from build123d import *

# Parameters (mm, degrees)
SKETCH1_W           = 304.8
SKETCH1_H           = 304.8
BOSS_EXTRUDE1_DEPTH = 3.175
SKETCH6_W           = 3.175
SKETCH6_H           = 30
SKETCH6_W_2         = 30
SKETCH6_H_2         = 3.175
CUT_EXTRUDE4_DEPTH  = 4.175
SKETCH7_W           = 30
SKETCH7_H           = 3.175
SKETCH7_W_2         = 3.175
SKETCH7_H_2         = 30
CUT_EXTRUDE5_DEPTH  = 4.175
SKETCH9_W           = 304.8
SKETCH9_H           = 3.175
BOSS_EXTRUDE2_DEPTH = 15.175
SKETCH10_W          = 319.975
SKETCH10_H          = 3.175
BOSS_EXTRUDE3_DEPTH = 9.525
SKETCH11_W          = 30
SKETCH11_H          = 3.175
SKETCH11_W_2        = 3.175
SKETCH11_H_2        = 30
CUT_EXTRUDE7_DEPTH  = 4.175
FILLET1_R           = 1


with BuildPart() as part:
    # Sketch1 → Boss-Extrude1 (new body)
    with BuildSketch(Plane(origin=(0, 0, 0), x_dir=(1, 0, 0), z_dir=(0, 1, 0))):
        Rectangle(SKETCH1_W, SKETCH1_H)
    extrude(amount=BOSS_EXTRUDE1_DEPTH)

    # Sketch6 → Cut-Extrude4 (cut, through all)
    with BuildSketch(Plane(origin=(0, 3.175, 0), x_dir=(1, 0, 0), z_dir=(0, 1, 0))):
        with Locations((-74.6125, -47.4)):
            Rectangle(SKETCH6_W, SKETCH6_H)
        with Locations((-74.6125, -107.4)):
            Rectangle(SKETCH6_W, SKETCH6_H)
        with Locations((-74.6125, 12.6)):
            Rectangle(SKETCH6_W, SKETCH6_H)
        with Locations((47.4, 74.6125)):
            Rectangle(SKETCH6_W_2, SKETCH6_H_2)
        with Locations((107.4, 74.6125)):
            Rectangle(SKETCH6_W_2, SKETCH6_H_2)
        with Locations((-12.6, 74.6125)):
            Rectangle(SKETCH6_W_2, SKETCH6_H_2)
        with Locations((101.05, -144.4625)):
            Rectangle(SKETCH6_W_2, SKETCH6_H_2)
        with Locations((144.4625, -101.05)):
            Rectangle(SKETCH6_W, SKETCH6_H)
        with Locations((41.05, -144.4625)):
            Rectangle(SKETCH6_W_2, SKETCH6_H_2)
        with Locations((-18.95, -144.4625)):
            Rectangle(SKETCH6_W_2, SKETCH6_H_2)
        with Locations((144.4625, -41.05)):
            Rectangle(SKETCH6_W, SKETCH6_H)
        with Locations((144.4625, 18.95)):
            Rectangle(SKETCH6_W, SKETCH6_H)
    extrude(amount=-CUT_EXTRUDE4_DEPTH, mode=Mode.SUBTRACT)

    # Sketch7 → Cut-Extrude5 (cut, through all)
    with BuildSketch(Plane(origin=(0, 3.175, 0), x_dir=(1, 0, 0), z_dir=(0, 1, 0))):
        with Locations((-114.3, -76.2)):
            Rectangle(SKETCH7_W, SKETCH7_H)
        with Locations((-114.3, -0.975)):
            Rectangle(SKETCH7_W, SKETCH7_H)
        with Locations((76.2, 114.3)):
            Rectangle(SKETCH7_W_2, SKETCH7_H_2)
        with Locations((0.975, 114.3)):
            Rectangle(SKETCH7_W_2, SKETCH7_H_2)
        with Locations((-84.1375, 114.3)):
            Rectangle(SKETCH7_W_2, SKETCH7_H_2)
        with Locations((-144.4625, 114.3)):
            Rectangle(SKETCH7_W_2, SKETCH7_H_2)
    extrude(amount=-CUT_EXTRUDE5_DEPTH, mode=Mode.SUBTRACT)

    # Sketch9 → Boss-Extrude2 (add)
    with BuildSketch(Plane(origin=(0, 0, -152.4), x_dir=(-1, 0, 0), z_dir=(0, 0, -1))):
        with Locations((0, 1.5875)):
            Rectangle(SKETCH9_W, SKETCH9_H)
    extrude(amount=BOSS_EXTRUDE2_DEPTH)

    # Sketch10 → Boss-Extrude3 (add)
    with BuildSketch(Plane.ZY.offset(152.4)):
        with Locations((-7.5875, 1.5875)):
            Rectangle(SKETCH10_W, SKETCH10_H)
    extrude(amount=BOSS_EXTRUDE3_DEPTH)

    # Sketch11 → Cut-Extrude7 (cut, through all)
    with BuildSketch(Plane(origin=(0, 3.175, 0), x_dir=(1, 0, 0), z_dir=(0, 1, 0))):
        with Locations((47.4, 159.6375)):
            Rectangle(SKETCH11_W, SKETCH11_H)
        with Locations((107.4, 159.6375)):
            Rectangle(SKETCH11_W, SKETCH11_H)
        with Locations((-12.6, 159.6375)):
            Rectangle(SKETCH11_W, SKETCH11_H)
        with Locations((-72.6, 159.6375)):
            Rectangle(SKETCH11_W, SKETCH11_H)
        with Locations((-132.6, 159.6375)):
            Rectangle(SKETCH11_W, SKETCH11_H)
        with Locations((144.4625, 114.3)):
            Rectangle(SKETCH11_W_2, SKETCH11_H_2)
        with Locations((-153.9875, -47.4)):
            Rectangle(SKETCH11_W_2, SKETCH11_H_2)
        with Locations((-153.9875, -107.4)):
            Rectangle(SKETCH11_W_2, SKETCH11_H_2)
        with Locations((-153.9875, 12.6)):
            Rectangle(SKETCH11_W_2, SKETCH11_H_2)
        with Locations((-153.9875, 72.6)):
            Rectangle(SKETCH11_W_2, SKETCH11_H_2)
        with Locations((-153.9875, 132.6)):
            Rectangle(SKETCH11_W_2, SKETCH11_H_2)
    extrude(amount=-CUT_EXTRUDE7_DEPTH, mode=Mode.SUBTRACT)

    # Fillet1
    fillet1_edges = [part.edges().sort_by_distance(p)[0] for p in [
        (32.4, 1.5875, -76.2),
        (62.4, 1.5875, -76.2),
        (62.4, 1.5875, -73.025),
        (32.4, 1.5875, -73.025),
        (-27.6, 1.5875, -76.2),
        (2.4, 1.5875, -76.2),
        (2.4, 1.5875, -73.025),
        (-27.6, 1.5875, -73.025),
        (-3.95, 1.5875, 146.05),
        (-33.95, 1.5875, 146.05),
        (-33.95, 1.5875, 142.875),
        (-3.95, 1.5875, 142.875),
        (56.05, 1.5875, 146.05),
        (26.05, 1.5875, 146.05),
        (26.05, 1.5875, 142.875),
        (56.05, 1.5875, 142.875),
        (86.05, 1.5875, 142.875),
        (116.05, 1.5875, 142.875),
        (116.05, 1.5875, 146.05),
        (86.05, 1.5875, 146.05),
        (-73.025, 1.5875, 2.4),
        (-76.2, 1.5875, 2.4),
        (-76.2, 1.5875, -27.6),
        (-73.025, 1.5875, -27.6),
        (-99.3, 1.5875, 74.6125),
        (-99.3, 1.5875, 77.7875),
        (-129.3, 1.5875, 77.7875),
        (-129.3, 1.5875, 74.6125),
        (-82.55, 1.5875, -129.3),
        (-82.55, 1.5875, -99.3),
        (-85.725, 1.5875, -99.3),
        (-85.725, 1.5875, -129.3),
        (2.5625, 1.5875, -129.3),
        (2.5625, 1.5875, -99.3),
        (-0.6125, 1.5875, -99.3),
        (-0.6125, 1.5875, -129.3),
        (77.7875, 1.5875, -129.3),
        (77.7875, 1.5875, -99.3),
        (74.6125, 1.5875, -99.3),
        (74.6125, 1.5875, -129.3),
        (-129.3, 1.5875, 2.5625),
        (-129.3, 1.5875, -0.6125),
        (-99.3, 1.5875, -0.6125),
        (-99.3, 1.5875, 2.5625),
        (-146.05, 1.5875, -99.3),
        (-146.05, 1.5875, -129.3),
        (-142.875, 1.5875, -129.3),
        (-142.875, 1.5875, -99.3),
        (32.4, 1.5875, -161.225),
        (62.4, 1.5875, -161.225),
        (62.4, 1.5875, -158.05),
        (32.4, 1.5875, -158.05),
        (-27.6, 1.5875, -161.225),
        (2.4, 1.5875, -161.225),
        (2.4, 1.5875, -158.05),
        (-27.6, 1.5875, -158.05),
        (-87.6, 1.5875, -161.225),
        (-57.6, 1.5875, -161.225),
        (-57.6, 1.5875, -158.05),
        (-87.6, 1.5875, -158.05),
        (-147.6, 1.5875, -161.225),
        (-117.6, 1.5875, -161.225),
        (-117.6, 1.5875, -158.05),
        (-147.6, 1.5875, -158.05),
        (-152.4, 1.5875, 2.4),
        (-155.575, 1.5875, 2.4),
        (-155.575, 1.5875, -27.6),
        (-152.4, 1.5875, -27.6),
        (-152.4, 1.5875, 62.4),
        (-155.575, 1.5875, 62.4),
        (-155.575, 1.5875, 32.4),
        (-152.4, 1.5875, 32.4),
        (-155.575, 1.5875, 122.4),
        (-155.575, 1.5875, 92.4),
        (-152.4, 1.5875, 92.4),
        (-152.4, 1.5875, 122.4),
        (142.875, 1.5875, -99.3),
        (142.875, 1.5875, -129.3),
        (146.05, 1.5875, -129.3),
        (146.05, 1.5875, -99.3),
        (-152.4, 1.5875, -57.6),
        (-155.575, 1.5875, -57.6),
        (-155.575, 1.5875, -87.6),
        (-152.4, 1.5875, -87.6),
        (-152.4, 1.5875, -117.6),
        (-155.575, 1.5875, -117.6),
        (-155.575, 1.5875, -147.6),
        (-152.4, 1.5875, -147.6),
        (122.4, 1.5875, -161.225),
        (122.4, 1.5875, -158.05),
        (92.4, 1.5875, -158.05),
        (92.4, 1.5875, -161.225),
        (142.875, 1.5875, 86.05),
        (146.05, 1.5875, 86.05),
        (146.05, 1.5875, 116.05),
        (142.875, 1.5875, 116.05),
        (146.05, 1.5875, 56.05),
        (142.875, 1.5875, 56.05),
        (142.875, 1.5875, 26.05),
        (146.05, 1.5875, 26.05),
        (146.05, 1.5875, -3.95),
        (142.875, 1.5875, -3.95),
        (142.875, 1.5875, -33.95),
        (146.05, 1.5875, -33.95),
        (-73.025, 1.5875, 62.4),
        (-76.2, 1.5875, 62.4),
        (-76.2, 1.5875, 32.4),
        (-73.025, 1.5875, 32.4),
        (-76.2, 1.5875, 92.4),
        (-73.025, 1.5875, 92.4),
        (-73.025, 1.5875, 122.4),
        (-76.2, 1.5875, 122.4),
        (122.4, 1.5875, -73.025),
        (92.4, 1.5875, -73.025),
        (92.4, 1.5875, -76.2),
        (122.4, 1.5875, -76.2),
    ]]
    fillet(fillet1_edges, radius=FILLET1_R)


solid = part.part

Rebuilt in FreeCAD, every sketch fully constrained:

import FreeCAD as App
import Part
import Sketcher
Q = App.Units.Quantity


def edges_at(feature, points):
    """Names of the edges that pass closest to the given points."""
    edges = feature.Shape.Edges
    near = lambda p: min(range(len(edges)), key=lambda i: edges[i].distToShape(Part.Vertex(*p))[0])
    return sorted({f"Edge{near(p) + 1}" for p in points})

doc = App.newDocument("Part")
body = doc.addObject("PartDesign::Body", "Body")

sketch1 = doc.addObject("Sketcher::SketchObject", "Sketch")
body.addObject(sketch1)
sketch1.AttachmentSupport = (doc.XZ_Plane, [""])
sketch1.MapMode = "FlatFace"
sketch1.addGeometry([
    Part.LineSegment(App.Vector(-152, -152, 0), App.Vector(-152, 152, 0)),
    Part.LineSegment(App.Vector(-152, 152, 0), App.Vector(152, 152, 0)),
    Part.LineSegment(App.Vector(152, 152, 0), App.Vector(152, -152, 0)),
    Part.LineSegment(App.Vector(152, -152, 0), App.Vector(-152, -152, 0)),
], False)
sketch1.addConstraint([
    Sketcher.Constraint("Coincident", 0, 2, 1, 1),
    Sketcher.Constraint("Coincident", 1, 2, 2, 1),
    Sketcher.Constraint("Coincident", 2, 2, 3, 1),
    Sketcher.Constraint("Coincident", 3, 2, 0, 1),
    Sketcher.Constraint("Vertical", 0),
    Sketcher.Constraint("Horizontal", 1),
    Sketcher.Constraint("Vertical", 2),
    Sketcher.Constraint("Horizontal", 3),
    Sketcher.Constraint("Symmetric", 0, 2, 2, 2, -1, 1),
    Sketcher.Constraint("Equal", 3, 0),
    Sketcher.Constraint("DistanceX", 1, 1, 1, 2, Q("12 in")),
])
pad1 = doc.addObject("PartDesign::Pad", "Pad")
body.addObject(pad1)
pad1.Profile = sketch1
pad1.Length = Q("0.125 in")
pad1.Reversed = True

sketch2 = doc.addObject("Sketcher::SketchObject", "Sketch001")
body.addObject(sketch2)
sketch2.AttachmentSupport = (doc.XZ_Plane, [""])
sketch2.MapMode = "FlatFace"
sketch2.AttachmentOffset = App.Placement(App.Vector(0, 0, -0.125 * 25.4), App.Rotation())
sketch2.addGeometry([
    Part.LineSegment(App.Vector(-76.2, 32.4, 0), App.Vector(-76.2, 62.4, 0)),
    Part.LineSegment(App.Vector(-76.2, 62.4, 0), App.Vector(-73, 62.4, 0)),
    Part.LineSegment(App.Vector(-73, 62.4, 0), App.Vector(-73, 32.4, 0)),
    Part.LineSegment(App.Vector(-73, 32.4, 0), App.Vector(-76.2, 32.4, 0)),
    Part.LineSegment(App.Vector(-76.2, 92.4, 0), App.Vector(-76.2, 122.4, 0)),
    Part.LineSegment(App.Vector(-76.2, 122.4, 0), App.Vector(-73, 122.4, 0)),
    Part.LineSegment(App.Vector(-73, 122.4, 0), App.Vector(-73, 92.4, 0)),
    Part.LineSegment(App.Vector(-73, 92.4, 0), App.Vector(-76.2, 92.4, 0)),
    Part.LineSegment(App.Vector(-76.2, -27.6, 0), App.Vector(-76.2, 2.4, 0)),
    Part.LineSegment(App.Vector(-76.2, 2.4, 0), App.Vector(-73, 2.4, 0)),
    Part.LineSegment(App.Vector(-73, 2.4, 0), App.Vector(-73, -27.6, 0)),
    Part.LineSegment(App.Vector(-73, -27.6, 0), App.Vector(-76.2, -27.6, 0)),
    Part.LineSegment(App.Vector(32.4, -76.2, 0), App.Vector(32.4, -73, 0)),
    Part.LineSegment(App.Vector(32.4, -73, 0), App.Vector(62.4, -73, 0)),
    Part.LineSegment(App.Vector(62.4, -73, 0), App.Vector(62.4, -76.2, 0)),
    Part.LineSegment(App.Vector(62.4, -76.2, 0), App.Vector(32.4, -76.2, 0)),
    Part.LineSegment(App.Vector(92.4, -76.2, 0), App.Vector(92.4, -73, 0)),
    Part.LineSegment(App.Vector(92.4, -73, 0), App.Vector(122.4, -73, 0)),
    Part.LineSegment(App.Vector(122.4, -73, 0), App.Vector(122.4, -76.2, 0)),
    Part.LineSegment(App.Vector(122.4, -76.2, 0), App.Vector(92.4, -76.2, 0)),
    Part.LineSegment(App.Vector(-27.6, -76.2, 0), App.Vector(-27.6, -73, 0)),
    Part.LineSegment(App.Vector(-27.6, -73, 0), App.Vector(2.4, -73, 0)),
    Part.LineSegment(App.Vector(2.4, -73, 0), App.Vector(2.4, -76.2, 0)),
    Part.LineSegment(App.Vector(2.4, -76.2, 0), App.Vector(-27.6, -76.2, 0)),
    Part.LineSegment(App.Vector(86, 142.9, 0), App.Vector(86, 146.1, 0)),
    Part.LineSegment(App.Vector(86, 146.1, 0), App.Vector(116, 146.1, 0)),
    Part.LineSegment(App.Vector(116, 146.1, 0), App.Vector(116, 142.9, 0)),
    Part.LineSegment(App.Vector(116, 142.9, 0), App.Vector(86, 142.9, 0)),
    Part.LineSegment(App.Vector(142.9, 86, 0), App.Vector(142.9, 116, 0)),
    Part.LineSegment(App.Vector(142.9, 116, 0), App.Vector(146.1, 116, 0)),
    Part.LineSegment(App.Vector(146.1, 116, 0), App.Vector(146.1, 86, 0)),
    Part.LineSegment(App.Vector(146.1, 86, 0), App.Vector(142.9, 86, 0)),
    Part.LineSegment(App.Vector(26.1, 142.9, 0), App.Vector(26.1, 146.1, 0)),
    Part.LineSegment(App.Vector(26.1, 146.1, 0), App.Vector(56, 146.1, 0)),
    Part.LineSegment(App.Vector(56, 146.1, 0), App.Vector(56, 142.9, 0)),
    Part.LineSegment(App.Vector(56, 142.9, 0), App.Vector(26.1, 142.9, 0)),
    Part.LineSegment(App.Vector(-34, 142.9, 0), App.Vector(-34, 146.1, 0)),
    Part.LineSegment(App.Vector(-34, 146.1, 0), App.Vector(-4, 146.1, 0)),
    Part.LineSegment(App.Vector(-4, 146.1, 0), App.Vector(-4, 142.9, 0)),
    Part.LineSegment(App.Vector(-4, 142.9, 0), App.Vector(-34, 142.9, 0)),
    Part.LineSegment(App.Vector(142.9, 26.1, 0), App.Vector(142.9, 56, 0)),
    Part.LineSegment(App.Vector(142.9, 56, 0), App.Vector(146.1, 56, 0)),
    Part.LineSegment(App.Vector(146.1, 56, 0), App.Vector(146.1, 26.1, 0)),
    Part.LineSegment(App.Vector(146.1, 26.1, 0), App.Vector(142.9, 26.1, 0)),
    Part.LineSegment(App.Vector(142.9, -34, 0), App.Vector(142.9, -4, 0)),
    Part.LineSegment(App.Vector(142.9, -4, 0), App.Vector(146.1, -4, 0)),
    Part.LineSegment(App.Vector(146.1, -4, 0), App.Vector(146.1, -34, 0)),
    Part.LineSegment(App.Vector(146.1, -34, 0), App.Vector(142.9, -34, 0)),
], False)
sketch2.addConstraint([
    Sketcher.Constraint("Coincident", 0, 2, 1, 1),
    Sketcher.Constraint("Coincident", 1, 2, 2, 1),
    Sketcher.Constraint("Coincident", 2, 2, 3, 1),
    Sketcher.Constraint("Coincident", 3, 2, 0, 1),
    Sketcher.Constraint("Coincident", 4, 2, 5, 1),
    Sketcher.Constraint("Coincident", 5, 2, 6, 1),
    Sketcher.Constraint("Coincident", 6, 2, 7, 1),
    Sketcher.Constraint("Coincident", 7, 2, 4, 1),
    Sketcher.Constraint("Coincident", 8, 2, 9, 1),
    Sketcher.Constraint("Coincident", 9, 2, 10, 1),
    Sketcher.Constraint("Coincident", 10, 2, 11, 1),
    Sketcher.Constraint("Coincident", 11, 2, 8, 1),
    Sketcher.Constraint("Coincident", 12, 2, 13, 1),
    Sketcher.Constraint("Coincident", 13, 2, 14, 1),
    Sketcher.Constraint("Coincident", 14, 2, 15, 1),
    Sketcher.Constraint("Coincident", 15, 2, 12, 1),
    Sketcher.Constraint("Coincident", 16, 2, 17, 1),
    Sketcher.Constraint("Coincident", 17, 2, 18, 1),
    Sketcher.Constraint("Coincident", 18, 2, 19, 1),
    Sketcher.Constraint("Coincident", 19, 2, 16, 1),
    Sketcher.Constraint("Coincident", 20, 2, 21, 1),
    Sketcher.Constraint("Coincident", 21, 2, 22, 1),
    Sketcher.Constraint("Coincident", 22, 2, 23, 1),
    Sketcher.Constraint("Coincident", 23, 2, 20, 1),
    Sketcher.Constraint("Coincident", 24, 2, 25, 1),
    Sketcher.Constraint("Coincident", 25, 2, 26, 1),
    Sketcher.Constraint("Coincident", 26, 2, 27, 1),
    Sketcher.Constraint("Coincident", 27, 2, 24, 1),
    Sketcher.Constraint("Coincident", 28, 2, 29, 1),
    Sketcher.Constraint("Coincident", 29, 2, 30, 1),
    Sketcher.Constraint("Coincident", 30, 2, 31, 1),
    Sketcher.Constraint("Coincident", 31, 2, 28, 1),
    Sketcher.Constraint("Coincident", 32, 2, 33, 1),
    Sketcher.Constraint("Coincident", 33, 2, 34, 1),
    Sketcher.Constraint("Coincident", 34, 2, 35, 1),
    Sketcher.Constraint("Coincident", 35, 2, 32, 1),
    Sketcher.Constraint("Coincident", 36, 2, 37, 1),
    Sketcher.Constraint("Coincident", 37, 2, 38, 1),
    Sketcher.Constraint("Coincident", 38, 2, 39, 1),
    Sketcher.Constraint("Coincident", 39, 2, 36, 1),
    Sketcher.Constraint("Coincident", 40, 2, 41, 1),
    Sketcher.Constraint("Coincident", 41, 2, 42, 1),
    Sketcher.Constraint("Coincident", 42, 2, 43, 1),
    Sketcher.Constraint("Coincident", 43, 2, 40, 1),
    Sketcher.Constraint("Coincident", 44, 2, 45, 1),
    Sketcher.Constraint("Coincident", 45, 2, 46, 1),
    Sketcher.Constraint("Coincident", 46, 2, 47, 1),
    Sketcher.Constraint("Coincident", 47, 2, 44, 1),
    Sketcher.Constraint("Vertical", 0),
    Sketcher.Constraint("Horizontal", 1),
    Sketcher.Constraint("Vertical", 2),
    Sketcher.Constraint("Horizontal", 3),
    Sketcher.Constraint("Vertical", 4),
    Sketcher.Constraint("Horizontal", 5),
    Sketcher.Constraint("Vertical", 6),
    Sketcher.Constraint("Horizontal", 7),
    Sketcher.Constraint("Vertical", 8),
    Sketcher.Constraint("Horizontal", 9),
    Sketcher.Constraint("Vertical", 10),
    Sketcher.Constraint("Horizontal", 11),
    Sketcher.Constraint("Vertical", 12),
    Sketcher.Constraint("Horizontal", 13),
    Sketcher.Constraint("Vertical", 14),
    Sketcher.Constraint("Horizontal", 15),
    Sketcher.Constraint("Vertical", 16),
    Sketcher.Constraint("Horizontal", 17),
    Sketcher.Constraint("Vertical", 18),
    Sketcher.Constraint("Horizontal", 19),
    Sketcher.Constraint("Vertical", 20),
    Sketcher.Constraint("Horizontal", 21),
    Sketcher.Constraint("Vertical", 22),
    Sketcher.Constraint("Horizontal", 23),
    Sketcher.Constraint("Vertical", 24),
    Sketcher.Constraint("Horizontal", 25),
    Sketcher.Constraint("Vertical", 26),
    Sketcher.Constraint("Horizontal", 27),
    Sketcher.Constraint("Vertical", 28),
    Sketcher.Constraint("Horizontal", 29),
    Sketcher.Constraint("Vertical", 30),
    Sketcher.Constraint("Horizontal", 31),
    Sketcher.Constraint("Vertical", 32),
    Sketcher.Constraint("Horizontal", 33),
    Sketcher.Constraint("Vertical", 34),
    Sketcher.Constraint("Horizontal", 35),
    Sketcher.Constraint("Vertical", 36),
    Sketcher.Constraint("Horizontal", 37),
    Sketcher.Constraint("Vertical", 38),
    Sketcher.Constraint("Horizontal", 39),
    Sketcher.Constraint("Vertical", 40),
    Sketcher.Constraint("Horizontal", 41),
    Sketcher.Constraint("Vertical", 42),
    Sketcher.Constraint("Horizontal", 43),
    Sketcher.Constraint("Vertical", 44),
    Sketcher.Constraint("Horizontal", 45),
    Sketcher.Constraint("Vertical", 46),
    Sketcher.Constraint("Horizontal", 47),
    Sketcher.Constraint("Horizontal", 13, 2, 16, 2),
    Sketcher.Constraint("Horizontal", 15, 2, 18, 2),
    Sketcher.Constraint("Horizontal", 17, 2, 20, 2),
    Sketcher.Constraint("Horizontal", 19, 2, 22, 2),
    Sketcher.Constraint("Horizontal", 25, 2, 32, 2),
    Sketcher.Constraint("Horizontal", 27, 2, 34, 2),
    Sketcher.Constraint("Horizontal", 33, 2, 36, 2),
    Sketcher.Constraint("Horizontal", 35, 2, 38, 2),
    Sketcher.Constraint("Vertical", 3, 2, 4, 2),
    Sketcher.Constraint("Vertical", 2, 2, 5, 2),
    Sketcher.Constraint("Vertical", 7, 2, 8, 2),
    Sketcher.Constraint("Vertical", 6, 2, 9, 2),
    Sketcher.Constraint("Vertical", 31, 2, 40, 2),
    Sketcher.Constraint("Vertical", 30, 2, 41, 2),
    Sketcher.Constraint("Vertical", 43, 2, 44, 2),
    Sketcher.Constraint("Vertical", 42, 2, 45, 2),
    Sketcher.Constraint("Equal", 15, 17),
    Sketcher.Constraint("Equal", 19, 21),
    Sketcher.Constraint("Equal", 23, 25),
    Sketcher.Constraint("Equal", 11, 29),
    Sketcher.Constraint("Equal", 27, 33),
    Sketcher.Constraint("Equal", 35, 37),
    Sketcher.Constraint("Equal", 39, 0),
    Sketcher.Constraint("Equal", 2, 4),
    Sketcher.Constraint("Equal", 6, 8),
    Sketcher.Constraint("Equal", 47, 12),
    Sketcher.Constraint("Equal", 22, 24),
    Sketcher.Constraint("Equal", 10, 28),
    Sketcher.Constraint("Equal", 30, 40),
    Sketcher.Constraint("Equal", 42, 44),
    Sketcher.Constraint("DistanceX", 0, 2, -1, 1, Q("3 in")),
    Sketcher.Constraint("DistanceY", 14, 2, -1, 1, Q("3 in")),
    Sketcher.Constraint("DistanceX", 1, 1, 1, 2, Q("0.125 in")),
    Sketcher.Constraint("DistanceY", -1, 1, 24, 2, Q("5.75 in")),
    Sketcher.Constraint("DistanceX", -1, 1, 29, 2, Q("5.75 in")),
    Sketcher.Constraint("DistanceX", 13, 1, 13, 2, 30.0),
    Sketcher.Constraint("DistanceY", -1, 1, 0, 2, 62.4),
    Sketcher.Constraint("DistanceY", -1, 1, 4, 2, 122.4),
    Sketcher.Constraint("DistanceY", -1, 1, 8, 2, 2.4),
    Sketcher.Constraint("DistanceX", -1, 1, 12, 2, 32.4),
    Sketcher.Constraint("DistanceX", -1, 1, 16, 2, 92.4),
    Sketcher.Constraint("DistanceX", 20, 2, -1, 1, 27.6),
    Sketcher.Constraint("DistanceX", -1, 1, 24, 2, 86.05),
    Sketcher.Constraint("DistanceY", -1, 1, 28, 2, 116.05),
    Sketcher.Constraint("DistanceX", -1, 1, 32, 2, 26.05),
    Sketcher.Constraint("DistanceX", 36, 2, -1, 1, 33.95),
    Sketcher.Constraint("DistanceY", -1, 1, 40, 2, 56.05),
    Sketcher.Constraint("DistanceY", 44, 2, -1, 1, 3.95),
])
pocket1 = doc.addObject("PartDesign::Pocket", "Pocket")
body.addObject(pocket1)
pocket1.Profile = sketch2
pocket1.Type = "ThroughAll"
pocket1.Reversed = True

sketch3 = doc.addObject("Sketcher::SketchObject", "Sketch002")
body.addObject(sketch3)
sketch3.AttachmentSupport = (doc.XZ_Plane, [""])
sketch3.MapMode = "FlatFace"
sketch3.AttachmentOffset = App.Placement(App.Vector(0, 0, -0.125 * 25.4), App.Rotation())
sketch3.addGeometry([
    Part.LineSegment(App.Vector(-129.3, 74.6, 0), App.Vector(-129.3, 77.8, 0)),
    Part.LineSegment(App.Vector(-129.3, 77.8, 0), App.Vector(-99.3, 77.8, 0)),
    Part.LineSegment(App.Vector(-99.3, 77.8, 0), App.Vector(-99.3, 74.6, 0)),
    Part.LineSegment(App.Vector(-99.3, 74.6, 0), App.Vector(-129.3, 74.6, 0)),
    Part.LineSegment(App.Vector(-129.3, -0.6, 0), App.Vector(-129.3, 2.6, 0)),
    Part.LineSegment(App.Vector(-129.3, 2.6, 0), App.Vector(-99.3, 2.6, 0)),
    Part.LineSegment(App.Vector(-99.3, 2.6, 0), App.Vector(-99.3, -0.6, 0)),
    Part.LineSegment(App.Vector(-99.3, -0.6, 0), App.Vector(-129.3, -0.6, 0)),
    Part.LineSegment(App.Vector(74.6, -129.3, 0), App.Vector(74.6, -99.3, 0)),
    Part.LineSegment(App.Vector(74.6, -99.3, 0), App.Vector(77.8, -99.3, 0)),
    Part.LineSegment(App.Vector(77.8, -99.3, 0), App.Vector(77.8, -129.3, 0)),
    Part.LineSegment(App.Vector(77.8, -129.3, 0), App.Vector(74.6, -129.3, 0)),
    Part.LineSegment(App.Vector(-0.6, -129.3, 0), App.Vector(-0.6, -99.3, 0)),
    Part.LineSegment(App.Vector(-0.6, -99.3, 0), App.Vector(2.6, -99.3, 0)),
    Part.LineSegment(App.Vector(2.6, -99.3, 0), App.Vector(2.6, -129.3, 0)),
    Part.LineSegment(App.Vector(2.6, -129.3, 0), App.Vector(-0.6, -129.3, 0)),
    Part.LineSegment(App.Vector(-85.7, -129.3, 0), App.Vector(-85.7, -99.3, 0)),
    Part.LineSegment(App.Vector(-85.7, -99.3, 0), App.Vector(-82.5, -99.3, 0)),
    Part.LineSegment(App.Vector(-82.5, -99.3, 0), App.Vector(-82.5, -129.3, 0)),
    Part.LineSegment(App.Vector(-82.5, -129.3, 0), App.Vector(-85.7, -129.3, 0)),
    Part.LineSegment(App.Vector(-146.1, -129.3, 0), App.Vector(-146.1, -99.3, 0)),
    Part.LineSegment(App.Vector(-146.1, -99.3, 0), App.Vector(-142.9, -99.3, 0)),
    Part.LineSegment(App.Vector(-142.9, -99.3, 0), App.Vector(-142.9, -129.3, 0)),
    Part.LineSegment(App.Vector(-142.9, -129.3, 0), App.Vector(-146.1, -129.3, 0)),
], False)
sketch3.addConstraint([
    Sketcher.Constraint("Coincident", 0, 2, 1, 1),
    Sketcher.Constraint("Coincident", 1, 2, 2, 1),
    Sketcher.Constraint("Coincident", 2, 2, 3, 1),
    Sketcher.Constraint("Coincident", 3, 2, 0, 1),
    Sketcher.Constraint("Coincident", 4, 2, 5, 1),
    Sketcher.Constraint("Coincident", 5, 2, 6, 1),
    Sketcher.Constraint("Coincident", 6, 2, 7, 1),
    Sketcher.Constraint("Coincident", 7, 2, 4, 1),
    Sketcher.Constraint("Coincident", 8, 2, 9, 1),
    Sketcher.Constraint("Coincident", 9, 2, 10, 1),
    Sketcher.Constraint("Coincident", 10, 2, 11, 1),
    Sketcher.Constraint("Coincident", 11, 2, 8, 1),
    Sketcher.Constraint("Coincident", 12, 2, 13, 1),
    Sketcher.Constraint("Coincident", 13, 2, 14, 1),
    Sketcher.Constraint("Coincident", 14, 2, 15, 1),
    Sketcher.Constraint("Coincident", 15, 2, 12, 1),
    Sketcher.Constraint("Coincident", 16, 2, 17, 1),
    Sketcher.Constraint("Coincident", 17, 2, 18, 1),
    Sketcher.Constraint("Coincident", 18, 2, 19, 1),
    Sketcher.Constraint("Coincident", 19, 2, 16, 1),
    Sketcher.Constraint("Coincident", 20, 2, 21, 1),
    Sketcher.Constraint("Coincident", 21, 2, 22, 1),
    Sketcher.Constraint("Coincident", 22, 2, 23, 1),
    Sketcher.Constraint("Coincident", 23, 2, 20, 1),
    Sketcher.Constraint("Vertical", 0),
    Sketcher.Constraint("Horizontal", 1),
    Sketcher.Constraint("Vertical", 2),
    Sketcher.Constraint("Horizontal", 3),
    Sketcher.Constraint("Vertical", 4),
    Sketcher.Constraint("Horizontal", 5),
    Sketcher.Constraint("Vertical", 6),
    Sketcher.Constraint("Horizontal", 7),
    Sketcher.Constraint("Vertical", 8),
    Sketcher.Constraint("Horizontal", 9),
    Sketcher.Constraint("Vertical", 10),
    Sketcher.Constraint("Horizontal", 11),
    Sketcher.Constraint("Vertical", 12),
    Sketcher.Constraint("Horizontal", 13),
    Sketcher.Constraint("Vertical", 14),
    Sketcher.Constraint("Horizontal", 15),
    Sketcher.Constraint("Vertical", 16),
    Sketcher.Constraint("Horizontal", 17),
    Sketcher.Constraint("Vertical", 18),
    Sketcher.Constraint("Horizontal", 19),
    Sketcher.Constraint("Vertical", 20),
    Sketcher.Constraint("Horizontal", 21),
    Sketcher.Constraint("Vertical", 22),
    Sketcher.Constraint("Horizontal", 23),
    Sketcher.Constraint("Horizontal", 9, 2, 12, 2),
    Sketcher.Constraint("Horizontal", 11, 2, 14, 2),
    Sketcher.Constraint("Horizontal", 13, 2, 16, 2),
    Sketcher.Constraint("Horizontal", 15, 2, 18, 2),
    Sketcher.Constraint("Horizontal", 17, 2, 20, 2),
    Sketcher.Constraint("Horizontal", 19, 2, 22, 2),
    Sketcher.Constraint("Vertical", 3, 2, 4, 2),
    Sketcher.Constraint("Vertical", 2, 2, 5, 2),
    Sketcher.Constraint("Equal", 11, 13),
    Sketcher.Constraint("Equal", 15, 17),
    Sketcher.Constraint("Equal", 19, 21),
    Sketcher.Constraint("Equal", 23, 0),
    Sketcher.Constraint("Equal", 2, 4),
    Sketcher.Constraint("Equal", 7, 8),
    Sketcher.Constraint("DistanceX", 20, 2, 17, 2, Q("2.5 in")),
    Sketcher.Constraint("DistanceX", 9, 1, 9, 2, Q("0.125 in")),
    Sketcher.Constraint("DistanceX", 17, 2, -1, 1, Q("3.25 in")),
    Sketcher.Constraint("DistanceY", -1, 1, 0, 2, Q("3.0625 in")),
    Sketcher.Constraint("DistanceX", -1, 1, 8, 2, Q("2.9375 in")),
    Sketcher.Constraint("DistanceX", 1, 1, 1, 2, 30.0),
    Sketcher.Constraint("DistanceX", 0, 2, -1, 1, 129.3),
    Sketcher.Constraint("DistanceY", -1, 1, 4, 2, 2.5625),
    Sketcher.Constraint("DistanceY", 8, 2, -1, 1, 99.3),
    Sketcher.Constraint("DistanceX", 12, 2, -1, 1, 0.6125),
])
pocket2 = doc.addObject("PartDesign::Pocket", "Pocket001")
body.addObject(pocket2)
pocket2.Profile = sketch3
pocket2.Type = "ThroughAll"
pocket2.Reversed = True

sketch4 = doc.addObject("Sketcher::SketchObject", "Sketch003")
body.addObject(sketch4)
sketch4.AttachmentSupport = (doc.XY_Plane, [""])
sketch4.MapMode = "FlatFace"
sketch4.AttachmentOffset = App.Placement(App.Vector(0, 0, -6 * 25.4), App.Rotation())
sketch4.addGeometry([
    Part.LineSegment(App.Vector(152.4, 3.2, 0), App.Vector(152.4, 0, 0)),
    Part.LineSegment(App.Vector(152.4, 0, 0), App.Vector(-152.4, 0, 0)),
    Part.LineSegment(App.Vector(-152.4, 0, 0), App.Vector(-152.4, 3.2, 0)),
    Part.LineSegment(App.Vector(-152.4, 3.2, 0), App.Vector(152.4, 3.2, 0)),
], False)
sketch4.addConstraint([
    Sketcher.Constraint("Coincident", 0, 2, 1, 1),
    Sketcher.Constraint("Coincident", 1, 2, 2, 1),
    Sketcher.Constraint("Coincident", 2, 2, 3, 1),
    Sketcher.Constraint("Coincident", 3, 2, 0, 1),
    Sketcher.Constraint("Vertical", 0),
    Sketcher.Constraint("Horizontal", 1),
    Sketcher.Constraint("Vertical", 2),
    Sketcher.Constraint("Horizontal", 3),
    Sketcher.Constraint("Symmetric", 0, 2, 1, 2, -1, 1),
    Sketcher.Constraint("DistanceX", 1, 2, 1, 1, Q("12 in")),
    Sketcher.Constraint("DistanceY", 0, 2, 0, 1, Q("0.125 in")),
])
pad2 = doc.addObject("PartDesign::Pad", "Pad001")
body.addObject(pad2)
pad2.Profile = sketch4
pad2.Length = 15.175
pad2.Reversed = True

sketch5 = doc.addObject("Sketcher::SketchObject", "Sketch004")
body.addObject(sketch5)
sketch5.AttachmentSupport = (doc.YZ_Plane, [""])
sketch5.MapMode = "FlatFace"
sketch5.AttachmentOffset = App.Placement(App.Vector(0, 0, -6 * 25.4), App.Rotation())
sketch5.addGeometry([
    Part.LineSegment(App.Vector(3.2, -167.6, 0), App.Vector(0, -167.6, 0)),
    Part.LineSegment(App.Vector(0, -167.6, 0), App.Vector(0, 152.4, 0)),
    Part.LineSegment(App.Vector(0, 152.4, 0), App.Vector(3.2, 152.4, 0)),
    Part.LineSegment(App.Vector(3.2, 152.4, 0), App.Vector(3.2, -167.6, 0)),
], False)
sketch5.addConstraint([
    Sketcher.Constraint("Coincident", 0, 2, 1, 1),
    Sketcher.Constraint("Coincident", 1, 2, 2, 1),
    Sketcher.Constraint("Coincident", 2, 2, 3, 1),
    Sketcher.Constraint("Coincident", 3, 2, 0, 1),
    Sketcher.Constraint("Horizontal", 0),
    Sketcher.Constraint("Vertical", 1),
    Sketcher.Constraint("Horizontal", 2),
    Sketcher.Constraint("Vertical", 3),
    Sketcher.Constraint("PointOnObject", 0, 2, -2),
    Sketcher.Constraint("DistanceY", -1, 1, 1, 2, Q("6 in")),
    Sketcher.Constraint("DistanceX", 0, 2, 0, 1, Q("0.125 in")),
    Sketcher.Constraint("DistanceY", 1, 1, 1, 2, 319.975),
])
pad3 = doc.addObject("PartDesign::Pad", "Pad002")
body.addObject(pad3)
pad3.Profile = sketch5
pad3.Length = Q("0.375 in")
pad3.Reversed = True

sketch6 = doc.addObject("Sketcher::SketchObject", "Sketch005")
body.addObject(sketch6)
sketch6.AttachmentSupport = (doc.XZ_Plane, [""])
sketch6.MapMode = "FlatFace"
sketch6.AttachmentOffset = App.Placement(App.Vector(0, 0, -0.125 * 25.4), App.Rotation())
sketch6.addGeometry([
    Part.LineSegment(App.Vector(32.4, -161.2, 0), App.Vector(32.4, -158.1, 0)),
    Part.LineSegment(App.Vector(32.4, -158.1, 0), App.Vector(62.4, -158.1, 0)),
    Part.LineSegment(App.Vector(62.4, -158.1, 0), App.Vector(62.4, -161.2, 0)),
    Part.LineSegment(App.Vector(62.4, -161.2, 0), App.Vector(32.4, -161.2, 0)),
    Part.LineSegment(App.Vector(92.4, -161.2, 0), App.Vector(92.4, -158.1, 0)),
    Part.LineSegment(App.Vector(92.4, -158.1, 0), App.Vector(122.4, -158.1, 0)),
    Part.LineSegment(App.Vector(122.4, -158.1, 0), App.Vector(122.4, -161.2, 0)),
    Part.LineSegment(App.Vector(122.4, -161.2, 0), App.Vector(92.4, -161.2, 0)),
    Part.LineSegment(App.Vector(-27.6, -161.2, 0), App.Vector(-27.6, -158.1, 0)),
    Part.LineSegment(App.Vector(-27.6, -158.1, 0), App.Vector(2.4, -158.1, 0)),
    Part.LineSegment(App.Vector(2.4, -158.1, 0), App.Vector(2.4, -161.2, 0)),
    Part.LineSegment(App.Vector(2.4, -161.2, 0), App.Vector(-27.6, -161.2, 0)),
    Part.LineSegment(App.Vector(-87.6, -161.2, 0), App.Vector(-87.6, -158.1, 0)),
    Part.LineSegment(App.Vector(-87.6, -158.1, 0), App.Vector(-57.6, -158.1, 0)),
    Part.LineSegment(App.Vector(-57.6, -158.1, 0), App.Vector(-57.6, -161.2, 0)),
    Part.LineSegment(App.Vector(-57.6, -161.2, 0), App.Vector(-87.6, -161.2, 0)),
    Part.LineSegment(App.Vector(-147.6, -161.2, 0), App.Vector(-147.6, -158.1, 0)),
    Part.LineSegment(App.Vector(-147.6, -158.1, 0), App.Vector(-117.6, -158.1, 0)),
    Part.LineSegment(App.Vector(-117.6, -158.1, 0), App.Vector(-117.6, -161.2, 0)),
    Part.LineSegment(App.Vector(-117.6, -161.2, 0), App.Vector(-147.6, -161.2, 0)),
    Part.LineSegment(App.Vector(142.9, -129.3, 0), App.Vector(142.9, -99.3, 0)),
    Part.LineSegment(App.Vector(142.9, -99.3, 0), App.Vector(146.1, -99.3, 0)),
    Part.LineSegment(App.Vector(146.1, -99.3, 0), App.Vector(146.1, -129.3, 0)),
    Part.LineSegment(App.Vector(146.1, -129.3, 0), App.Vector(142.9, -129.3, 0)),
    Part.LineSegment(App.Vector(-155.6, 32.4, 0), App.Vector(-155.6, 62.4, 0)),
    Part.LineSegment(App.Vector(-155.6, 62.4, 0), App.Vector(-152.4, 62.4, 0)),
    Part.LineSegment(App.Vector(-152.4, 62.4, 0), App.Vector(-152.4, 32.4, 0)),
    Part.LineSegment(App.Vector(-152.4, 32.4, 0), App.Vector(-155.6, 32.4, 0)),
    Part.LineSegment(App.Vector(-155.6, 92.4, 0), App.Vector(-155.6, 122.4, 0)),
    Part.LineSegment(App.Vector(-155.6, 122.4, 0), App.Vector(-152.4, 122.4, 0)),
    Part.LineSegment(App.Vector(-152.4, 122.4, 0), App.Vector(-152.4, 92.4, 0)),
    Part.LineSegment(App.Vector(-152.4, 92.4, 0), App.Vector(-155.6, 92.4, 0)),
    Part.LineSegment(App.Vector(-155.6, -27.6, 0), App.Vector(-155.6, 2.4, 0)),
    Part.LineSegment(App.Vector(-155.6, 2.4, 0), App.Vector(-152.4, 2.4, 0)),
    Part.LineSegment(App.Vector(-152.4, 2.4, 0), App.Vector(-152.4, -27.6, 0)),
    Part.LineSegment(App.Vector(-152.4, -27.6, 0), App.Vector(-155.6, -27.6, 0)),
    Part.LineSegment(App.Vector(-155.6, -87.6, 0), App.Vector(-155.6, -57.6, 0)),
    Part.LineSegment(App.Vector(-155.6, -57.6, 0), App.Vector(-152.4, -57.6, 0)),
    Part.LineSegment(App.Vector(-152.4, -57.6, 0), App.Vector(-152.4, -87.6, 0)),
    Part.LineSegment(App.Vector(-152.4, -87.6, 0), App.Vector(-155.6, -87.6, 0)),
    Part.LineSegment(App.Vector(-155.6, -147.6, 0), App.Vector(-155.6, -117.6, 0)),
    Part.LineSegment(App.Vector(-155.6, -117.6, 0), App.Vector(-152.4, -117.6, 0)),
    Part.LineSegment(App.Vector(-152.4, -117.6, 0), App.Vector(-152.4, -147.6, 0)),
    Part.LineSegment(App.Vector(-152.4, -147.6, 0), App.Vector(-155.6, -147.6, 0)),
], False)
sketch6.addConstraint([
    Sketcher.Constraint("Coincident", 0, 2, 1, 1),
    Sketcher.Constraint("Coincident", 1, 2, 2, 1),
    Sketcher.Constraint("Coincident", 2, 2, 3, 1),
    Sketcher.Constraint("Coincident", 3, 2, 0, 1),
    Sketcher.Constraint("Coincident", 4, 2, 5, 1),
    Sketcher.Constraint("Coincident", 5, 2, 6, 1),
    Sketcher.Constraint("Coincident", 6, 2, 7, 1),
    Sketcher.Constraint("Coincident", 7, 2, 4, 1),
    Sketcher.Constraint("Coincident", 8, 2, 9, 1),
    Sketcher.Constraint("Coincident", 9, 2, 10, 1),
    Sketcher.Constraint("Coincident", 10, 2, 11, 1),
    Sketcher.Constraint("Coincident", 11, 2, 8, 1),
    Sketcher.Constraint("Coincident", 12, 2, 13, 1),
    Sketcher.Constraint("Coincident", 13, 2, 14, 1),
    Sketcher.Constraint("Coincident", 14, 2, 15, 1),
    Sketcher.Constraint("Coincident", 15, 2, 12, 1),
    Sketcher.Constraint("Coincident", 16, 2, 17, 1),
    Sketcher.Constraint("Coincident", 17, 2, 18, 1),
    Sketcher.Constraint("Coincident", 18, 2, 19, 1),
    Sketcher.Constraint("Coincident", 19, 2, 16, 1),
    Sketcher.Constraint("Coincident", 20, 2, 21, 1),
    Sketcher.Constraint("Coincident", 21, 2, 22, 1),
    Sketcher.Constraint("Coincident", 22, 2, 23, 1),
    Sketcher.Constraint("Coincident", 23, 2, 20, 1),
    Sketcher.Constraint("Coincident", 24, 2, 25, 1),
    Sketcher.Constraint("Coincident", 25, 2, 26, 1),
    Sketcher.Constraint("Coincident", 26, 2, 27, 1),
    Sketcher.Constraint("Coincident", 27, 2, 24, 1),
    Sketcher.Constraint("Coincident", 28, 2, 29, 1),
    Sketcher.Constraint("Coincident", 29, 2, 30, 1),
    Sketcher.Constraint("Coincident", 30, 2, 31, 1),
    Sketcher.Constraint("Coincident", 31, 2, 28, 1),
    Sketcher.Constraint("Coincident", 32, 2, 33, 1),
    Sketcher.Constraint("Coincident", 33, 2, 34, 1),
    Sketcher.Constraint("Coincident", 34, 2, 35, 1),
    Sketcher.Constraint("Coincident", 35, 2, 32, 1),
    Sketcher.Constraint("Coincident", 36, 2, 37, 1),
    Sketcher.Constraint("Coincident", 37, 2, 38, 1),
    Sketcher.Constraint("Coincident", 38, 2, 39, 1),
    Sketcher.Constraint("Coincident", 39, 2, 36, 1),
    Sketcher.Constraint("Coincident", 40, 2, 41, 1),
    Sketcher.Constraint("Coincident", 41, 2, 42, 1),
    Sketcher.Constraint("Coincident", 42, 2, 43, 1),
    Sketcher.Constraint("Coincident", 43, 2, 40, 1),
    Sketcher.Constraint("Vertical", 0),
    Sketcher.Constraint("Horizontal", 1),
    Sketcher.Constraint("Vertical", 2),
    Sketcher.Constraint("Horizontal", 3),
    Sketcher.Constraint("Vertical", 4),
    Sketcher.Constraint("Horizontal", 5),
    Sketcher.Constraint("Vertical", 6),
    Sketcher.Constraint("Horizontal", 7),
    Sketcher.Constraint("Vertical", 8),
    Sketcher.Constraint("Horizontal", 9),
    Sketcher.Constraint("Vertical", 10),
    Sketcher.Constraint("Horizontal", 11),
    Sketcher.Constraint("Vertical", 12),
    Sketcher.Constraint("Horizontal", 13),
    Sketcher.Constraint("Vertical", 14),
    Sketcher.Constraint("Horizontal", 15),
    Sketcher.Constraint("Vertical", 16),
    Sketcher.Constraint("Horizontal", 17),
    Sketcher.Constraint("Vertical", 18),
    Sketcher.Constraint("Horizontal", 19),
    Sketcher.Constraint("Vertical", 20),
    Sketcher.Constraint("Horizontal", 21),
    Sketcher.Constraint("Vertical", 22),
    Sketcher.Constraint("Horizontal", 23),
    Sketcher.Constraint("Vertical", 24),
    Sketcher.Constraint("Horizontal", 25),
    Sketcher.Constraint("Vertical", 26),
    Sketcher.Constraint("Horizontal", 27),
    Sketcher.Constraint("Vertical", 28),
    Sketcher.Constraint("Horizontal", 29),
    Sketcher.Constraint("Vertical", 30),
    Sketcher.Constraint("Horizontal", 31),
    Sketcher.Constraint("Vertical", 32),
    Sketcher.Constraint("Horizontal", 33),
    Sketcher.Constraint("Vertical", 34),
    Sketcher.Constraint("Horizontal", 35),
    Sketcher.Constraint("Vertical", 36),
    Sketcher.Constraint("Horizontal", 37),
    Sketcher.Constraint("Vertical", 38),
    Sketcher.Constraint("Horizontal", 39),
    Sketcher.Constraint("Vertical", 40),
    Sketcher.Constraint("Horizontal", 41),
    Sketcher.Constraint("Vertical", 42),
    Sketcher.Constraint("Horizontal", 43),
    Sketcher.Constraint("Horizontal", 1, 2, 4, 2),
    Sketcher.Constraint("Horizontal", 3, 2, 6, 2),
    Sketcher.Constraint("Horizontal", 5, 2, 8, 2),
    Sketcher.Constraint("Horizontal", 7, 2, 10, 2),
    Sketcher.Constraint("Horizontal", 9, 2, 12, 2),
    Sketcher.Constraint("Horizontal", 11, 2, 14, 2),
    Sketcher.Constraint("Horizontal", 13, 2, 16, 2),
    Sketcher.Constraint("Horizontal", 15, 2, 18, 2),
    Sketcher.Constraint("Vertical", 27, 2, 28, 2),
    Sketcher.Constraint("Vertical", 26, 2, 29, 2),
    Sketcher.Constraint("Vertical", 31, 2, 32, 2),
    Sketcher.Constraint("Vertical", 30, 2, 33, 2),
    Sketcher.Constraint("Vertical", 35, 2, 36, 2),
    Sketcher.Constraint("Vertical", 34, 2, 37, 2),
    Sketcher.Constraint("Vertical", 39, 2, 40, 2),
    Sketcher.Constraint("Vertical", 38, 2, 41, 2),
    Sketcher.Constraint("Equal", 3, 5),
    Sketcher.Constraint("Equal", 7, 9),
    Sketcher.Constraint("Equal", 11, 13),
    Sketcher.Constraint("Equal", 15, 17),
    Sketcher.Constraint("Equal", 23, 25),
    Sketcher.Constraint("Equal", 43, 0),
    Sketcher.Constraint("Equal", 19, 20),
    Sketcher.Constraint("Equal", 22, 24),
    Sketcher.Constraint("Equal", 26, 28),
    Sketcher.Constraint("Equal", 30, 32),
    Sketcher.Constraint("Equal", 34, 36),
    Sketcher.Constraint("Equal", 38, 40),
    Sketcher.Constraint("DistanceX", 25, 2, -1, 1, Q("6 in")),
    Sketcher.Constraint("DistanceX", 21, 1, 21, 2, Q("0.125 in")),
    Sketcher.Constraint("DistanceX", -1, 1, 21, 2, Q("5.75 in")),
    Sketcher.Constraint("DistanceX", 1, 1, 1, 2, 30.0),
    Sketcher.Constraint("DistanceX", -1, 1, 0, 2, 32.4),
    Sketcher.Constraint("DistanceY", 0, 2, -1, 1, 158.05),
    Sketcher.Constraint("DistanceX", -1, 1, 4, 2, 92.4),
    Sketcher.Constraint("DistanceX", 8, 2, -1, 1, 27.6),
    Sketcher.Constraint("DistanceX", 12, 2, -1, 1, 87.6),
    Sketcher.Constraint("DistanceX", 16, 2, -1, 1, 147.6),
    Sketcher.Constraint("DistanceY", 20, 2, -1, 1, 99.3),
    Sketcher.Constraint("DistanceY", -1, 1, 24, 2, 62.4),
    Sketcher.Constraint("DistanceY", -1, 1, 28, 2, 122.4),
    Sketcher.Constraint("DistanceY", -1, 1, 32, 2, 2.4),
    Sketcher.Constraint("DistanceY", 36, 2, -1, 1, 57.6),
    Sketcher.Constraint("DistanceY", 40, 2, -1, 1, 117.6),
])
pocket3 = doc.addObject("PartDesign::Pocket", "Pocket002")
body.addObject(pocket3)
pocket3.Profile = sketch6
pocket3.Type = "ThroughAll"
pocket3.Reversed = True
doc.recompute()

fillet = doc.addObject("PartDesign::Fillet", "Fillet")
body.addObject(fillet)
fillet.Base = (pocket3, edges_at(pocket3, [
    (32.4, 1.587, -76.2),
    (62.4, 1.587, -76.2),
    (62.4, 1.587, -73.025),
    (32.4, 1.587, -73.025),
    (-27.6, 1.587, -76.2),
    (2.4, 1.587, -76.2),
    (2.4, 1.587, -73.025),
    (-27.6, 1.587, -73.025),
    (-3.95, 1.587, 146.05),
    (-33.95, 1.587, 146.05),
    (-33.95, 1.587, 142.875),
    (-3.95, 1.587, 142.875),
    (56.05, 1.587, 146.05),
    (26.05, 1.587, 146.05),
    (26.05, 1.587, 142.875),
    (56.05, 1.587, 142.875),
    (86.05, 1.587, 142.875),
    (116.05, 1.587, 142.875),
    (116.05, 1.587, 146.05),
    (86.05, 1.587, 146.05),
    (-73.025, 1.587, 2.4),
    (-76.2, 1.587, 2.4),
    (-76.2, 1.587, -27.6),
    (-73.025, 1.587, -27.6),
    (-99.3, 1.587, 74.612),
    (-99.3, 1.587, 77.787),
    (-129.3, 1.587, 77.787),
    (-129.3, 1.587, 74.612),
    (-82.55, 1.587, -129.3),
    (-82.55, 1.587, -99.3),
    (-85.725, 1.587, -99.3),
    (-85.725, 1.587, -129.3),
    (2.562, 1.587, -129.3),
    (2.562, 1.587, -99.3),
    (-0.613, 1.587, -99.3),
    (-0.613, 1.587, -129.3),
    (77.787, 1.587, -129.3),
    (77.787, 1.587, -99.3),
    (74.612, 1.587, -99.3),
    (74.612, 1.587, -129.3),
    (-129.3, 1.587, 2.562),
    (-129.3, 1.587, -0.613),
    (-99.3, 1.587, -0.613),
    (-99.3, 1.587, 2.562),
    (-146.05, 1.587, -99.3),
    (-146.05, 1.587, -129.3),
    (-142.875, 1.587, -129.3),
    (-142.875, 1.587, -99.3),
    (32.4, 1.587, -161.225),
    (62.4, 1.587, -161.225),
    (62.4, 1.587, -158.05),
    (32.4, 1.587, -158.05),
    (-27.6, 1.587, -161.225),
    (2.4, 1.587, -161.225),
    (2.4, 1.587, -158.05),
    (-27.6, 1.587, -158.05),
    (-87.6, 1.587, -161.225),
    (-57.6, 1.587, -161.225),
    (-57.6, 1.587, -158.05),
    (-87.6, 1.587, -158.05),
    (-147.6, 1.587, -161.225),
    (-117.6, 1.587, -161.225),
    (-117.6, 1.587, -158.05),
    (-147.6, 1.587, -158.05),
    (-152.4, 1.587, 2.4),
    (-155.575, 1.587, 2.4),
    (-155.575, 1.587, -27.6),
    (-152.4, 1.587, -27.6),
    (-152.4, 1.587, 62.4),
    (-155.575, 1.587, 62.4),
    (-155.575, 1.587, 32.4),
    (-152.4, 1.587, 32.4),
    (-155.575, 1.587, 122.4),
    (-155.575, 1.587, 92.4),
    (-152.4, 1.587, 92.4),
    (-152.4, 1.587, 122.4),
    (142.875, 1.587, -99.3),
    (142.875, 1.587, -129.3),
    (146.05, 1.587, -129.3),
    (146.05, 1.587, -99.3),
    (-152.4, 1.587, -57.6),
    (-155.575, 1.587, -57.6),
    (-155.575, 1.587, -87.6),
    (-152.4, 1.587, -87.6),
    (-152.4, 1.587, -117.6),
    (-155.575, 1.587, -117.6),
    (-155.575, 1.587, -147.6),
    (-152.4, 1.587, -147.6),
    (122.4, 1.587, -161.225),
    (122.4, 1.587, -158.05),
    (92.4, 1.587, -158.05),
    (92.4, 1.587, -161.225),
    (142.875, 1.587, 86.05),
    (146.05, 1.587, 86.05),
    (146.05, 1.587, 116.05),
    (142.875, 1.587, 116.05),
    (146.05, 1.587, 56.05),
    (142.875, 1.587, 56.05),
    (142.875, 1.587, 26.05),
    (146.05, 1.587, 26.05),
    (146.05, 1.587, -3.95),
    (142.875, 1.587, -3.95),
    (142.875, 1.587, -33.95),
    (146.05, 1.587, -33.95),
    (-73.025, 1.587, 62.4),
    (-76.2, 1.587, 62.4),
    (-76.2, 1.587, 32.4),
    (-73.025, 1.587, 32.4),
    (-76.2, 1.587, 92.4),
    (-73.025, 1.587, 92.4),
    (-73.025, 1.587, 122.4),
    (-76.2, 1.587, 122.4),
    (122.4, 1.587, -73.025),
    (92.4, 1.587, -73.025),
    (92.4, 1.587, -76.2),
    (122.4, 1.587, -76.2),
]))
fillet.Radius = 1

doc.recompute()
